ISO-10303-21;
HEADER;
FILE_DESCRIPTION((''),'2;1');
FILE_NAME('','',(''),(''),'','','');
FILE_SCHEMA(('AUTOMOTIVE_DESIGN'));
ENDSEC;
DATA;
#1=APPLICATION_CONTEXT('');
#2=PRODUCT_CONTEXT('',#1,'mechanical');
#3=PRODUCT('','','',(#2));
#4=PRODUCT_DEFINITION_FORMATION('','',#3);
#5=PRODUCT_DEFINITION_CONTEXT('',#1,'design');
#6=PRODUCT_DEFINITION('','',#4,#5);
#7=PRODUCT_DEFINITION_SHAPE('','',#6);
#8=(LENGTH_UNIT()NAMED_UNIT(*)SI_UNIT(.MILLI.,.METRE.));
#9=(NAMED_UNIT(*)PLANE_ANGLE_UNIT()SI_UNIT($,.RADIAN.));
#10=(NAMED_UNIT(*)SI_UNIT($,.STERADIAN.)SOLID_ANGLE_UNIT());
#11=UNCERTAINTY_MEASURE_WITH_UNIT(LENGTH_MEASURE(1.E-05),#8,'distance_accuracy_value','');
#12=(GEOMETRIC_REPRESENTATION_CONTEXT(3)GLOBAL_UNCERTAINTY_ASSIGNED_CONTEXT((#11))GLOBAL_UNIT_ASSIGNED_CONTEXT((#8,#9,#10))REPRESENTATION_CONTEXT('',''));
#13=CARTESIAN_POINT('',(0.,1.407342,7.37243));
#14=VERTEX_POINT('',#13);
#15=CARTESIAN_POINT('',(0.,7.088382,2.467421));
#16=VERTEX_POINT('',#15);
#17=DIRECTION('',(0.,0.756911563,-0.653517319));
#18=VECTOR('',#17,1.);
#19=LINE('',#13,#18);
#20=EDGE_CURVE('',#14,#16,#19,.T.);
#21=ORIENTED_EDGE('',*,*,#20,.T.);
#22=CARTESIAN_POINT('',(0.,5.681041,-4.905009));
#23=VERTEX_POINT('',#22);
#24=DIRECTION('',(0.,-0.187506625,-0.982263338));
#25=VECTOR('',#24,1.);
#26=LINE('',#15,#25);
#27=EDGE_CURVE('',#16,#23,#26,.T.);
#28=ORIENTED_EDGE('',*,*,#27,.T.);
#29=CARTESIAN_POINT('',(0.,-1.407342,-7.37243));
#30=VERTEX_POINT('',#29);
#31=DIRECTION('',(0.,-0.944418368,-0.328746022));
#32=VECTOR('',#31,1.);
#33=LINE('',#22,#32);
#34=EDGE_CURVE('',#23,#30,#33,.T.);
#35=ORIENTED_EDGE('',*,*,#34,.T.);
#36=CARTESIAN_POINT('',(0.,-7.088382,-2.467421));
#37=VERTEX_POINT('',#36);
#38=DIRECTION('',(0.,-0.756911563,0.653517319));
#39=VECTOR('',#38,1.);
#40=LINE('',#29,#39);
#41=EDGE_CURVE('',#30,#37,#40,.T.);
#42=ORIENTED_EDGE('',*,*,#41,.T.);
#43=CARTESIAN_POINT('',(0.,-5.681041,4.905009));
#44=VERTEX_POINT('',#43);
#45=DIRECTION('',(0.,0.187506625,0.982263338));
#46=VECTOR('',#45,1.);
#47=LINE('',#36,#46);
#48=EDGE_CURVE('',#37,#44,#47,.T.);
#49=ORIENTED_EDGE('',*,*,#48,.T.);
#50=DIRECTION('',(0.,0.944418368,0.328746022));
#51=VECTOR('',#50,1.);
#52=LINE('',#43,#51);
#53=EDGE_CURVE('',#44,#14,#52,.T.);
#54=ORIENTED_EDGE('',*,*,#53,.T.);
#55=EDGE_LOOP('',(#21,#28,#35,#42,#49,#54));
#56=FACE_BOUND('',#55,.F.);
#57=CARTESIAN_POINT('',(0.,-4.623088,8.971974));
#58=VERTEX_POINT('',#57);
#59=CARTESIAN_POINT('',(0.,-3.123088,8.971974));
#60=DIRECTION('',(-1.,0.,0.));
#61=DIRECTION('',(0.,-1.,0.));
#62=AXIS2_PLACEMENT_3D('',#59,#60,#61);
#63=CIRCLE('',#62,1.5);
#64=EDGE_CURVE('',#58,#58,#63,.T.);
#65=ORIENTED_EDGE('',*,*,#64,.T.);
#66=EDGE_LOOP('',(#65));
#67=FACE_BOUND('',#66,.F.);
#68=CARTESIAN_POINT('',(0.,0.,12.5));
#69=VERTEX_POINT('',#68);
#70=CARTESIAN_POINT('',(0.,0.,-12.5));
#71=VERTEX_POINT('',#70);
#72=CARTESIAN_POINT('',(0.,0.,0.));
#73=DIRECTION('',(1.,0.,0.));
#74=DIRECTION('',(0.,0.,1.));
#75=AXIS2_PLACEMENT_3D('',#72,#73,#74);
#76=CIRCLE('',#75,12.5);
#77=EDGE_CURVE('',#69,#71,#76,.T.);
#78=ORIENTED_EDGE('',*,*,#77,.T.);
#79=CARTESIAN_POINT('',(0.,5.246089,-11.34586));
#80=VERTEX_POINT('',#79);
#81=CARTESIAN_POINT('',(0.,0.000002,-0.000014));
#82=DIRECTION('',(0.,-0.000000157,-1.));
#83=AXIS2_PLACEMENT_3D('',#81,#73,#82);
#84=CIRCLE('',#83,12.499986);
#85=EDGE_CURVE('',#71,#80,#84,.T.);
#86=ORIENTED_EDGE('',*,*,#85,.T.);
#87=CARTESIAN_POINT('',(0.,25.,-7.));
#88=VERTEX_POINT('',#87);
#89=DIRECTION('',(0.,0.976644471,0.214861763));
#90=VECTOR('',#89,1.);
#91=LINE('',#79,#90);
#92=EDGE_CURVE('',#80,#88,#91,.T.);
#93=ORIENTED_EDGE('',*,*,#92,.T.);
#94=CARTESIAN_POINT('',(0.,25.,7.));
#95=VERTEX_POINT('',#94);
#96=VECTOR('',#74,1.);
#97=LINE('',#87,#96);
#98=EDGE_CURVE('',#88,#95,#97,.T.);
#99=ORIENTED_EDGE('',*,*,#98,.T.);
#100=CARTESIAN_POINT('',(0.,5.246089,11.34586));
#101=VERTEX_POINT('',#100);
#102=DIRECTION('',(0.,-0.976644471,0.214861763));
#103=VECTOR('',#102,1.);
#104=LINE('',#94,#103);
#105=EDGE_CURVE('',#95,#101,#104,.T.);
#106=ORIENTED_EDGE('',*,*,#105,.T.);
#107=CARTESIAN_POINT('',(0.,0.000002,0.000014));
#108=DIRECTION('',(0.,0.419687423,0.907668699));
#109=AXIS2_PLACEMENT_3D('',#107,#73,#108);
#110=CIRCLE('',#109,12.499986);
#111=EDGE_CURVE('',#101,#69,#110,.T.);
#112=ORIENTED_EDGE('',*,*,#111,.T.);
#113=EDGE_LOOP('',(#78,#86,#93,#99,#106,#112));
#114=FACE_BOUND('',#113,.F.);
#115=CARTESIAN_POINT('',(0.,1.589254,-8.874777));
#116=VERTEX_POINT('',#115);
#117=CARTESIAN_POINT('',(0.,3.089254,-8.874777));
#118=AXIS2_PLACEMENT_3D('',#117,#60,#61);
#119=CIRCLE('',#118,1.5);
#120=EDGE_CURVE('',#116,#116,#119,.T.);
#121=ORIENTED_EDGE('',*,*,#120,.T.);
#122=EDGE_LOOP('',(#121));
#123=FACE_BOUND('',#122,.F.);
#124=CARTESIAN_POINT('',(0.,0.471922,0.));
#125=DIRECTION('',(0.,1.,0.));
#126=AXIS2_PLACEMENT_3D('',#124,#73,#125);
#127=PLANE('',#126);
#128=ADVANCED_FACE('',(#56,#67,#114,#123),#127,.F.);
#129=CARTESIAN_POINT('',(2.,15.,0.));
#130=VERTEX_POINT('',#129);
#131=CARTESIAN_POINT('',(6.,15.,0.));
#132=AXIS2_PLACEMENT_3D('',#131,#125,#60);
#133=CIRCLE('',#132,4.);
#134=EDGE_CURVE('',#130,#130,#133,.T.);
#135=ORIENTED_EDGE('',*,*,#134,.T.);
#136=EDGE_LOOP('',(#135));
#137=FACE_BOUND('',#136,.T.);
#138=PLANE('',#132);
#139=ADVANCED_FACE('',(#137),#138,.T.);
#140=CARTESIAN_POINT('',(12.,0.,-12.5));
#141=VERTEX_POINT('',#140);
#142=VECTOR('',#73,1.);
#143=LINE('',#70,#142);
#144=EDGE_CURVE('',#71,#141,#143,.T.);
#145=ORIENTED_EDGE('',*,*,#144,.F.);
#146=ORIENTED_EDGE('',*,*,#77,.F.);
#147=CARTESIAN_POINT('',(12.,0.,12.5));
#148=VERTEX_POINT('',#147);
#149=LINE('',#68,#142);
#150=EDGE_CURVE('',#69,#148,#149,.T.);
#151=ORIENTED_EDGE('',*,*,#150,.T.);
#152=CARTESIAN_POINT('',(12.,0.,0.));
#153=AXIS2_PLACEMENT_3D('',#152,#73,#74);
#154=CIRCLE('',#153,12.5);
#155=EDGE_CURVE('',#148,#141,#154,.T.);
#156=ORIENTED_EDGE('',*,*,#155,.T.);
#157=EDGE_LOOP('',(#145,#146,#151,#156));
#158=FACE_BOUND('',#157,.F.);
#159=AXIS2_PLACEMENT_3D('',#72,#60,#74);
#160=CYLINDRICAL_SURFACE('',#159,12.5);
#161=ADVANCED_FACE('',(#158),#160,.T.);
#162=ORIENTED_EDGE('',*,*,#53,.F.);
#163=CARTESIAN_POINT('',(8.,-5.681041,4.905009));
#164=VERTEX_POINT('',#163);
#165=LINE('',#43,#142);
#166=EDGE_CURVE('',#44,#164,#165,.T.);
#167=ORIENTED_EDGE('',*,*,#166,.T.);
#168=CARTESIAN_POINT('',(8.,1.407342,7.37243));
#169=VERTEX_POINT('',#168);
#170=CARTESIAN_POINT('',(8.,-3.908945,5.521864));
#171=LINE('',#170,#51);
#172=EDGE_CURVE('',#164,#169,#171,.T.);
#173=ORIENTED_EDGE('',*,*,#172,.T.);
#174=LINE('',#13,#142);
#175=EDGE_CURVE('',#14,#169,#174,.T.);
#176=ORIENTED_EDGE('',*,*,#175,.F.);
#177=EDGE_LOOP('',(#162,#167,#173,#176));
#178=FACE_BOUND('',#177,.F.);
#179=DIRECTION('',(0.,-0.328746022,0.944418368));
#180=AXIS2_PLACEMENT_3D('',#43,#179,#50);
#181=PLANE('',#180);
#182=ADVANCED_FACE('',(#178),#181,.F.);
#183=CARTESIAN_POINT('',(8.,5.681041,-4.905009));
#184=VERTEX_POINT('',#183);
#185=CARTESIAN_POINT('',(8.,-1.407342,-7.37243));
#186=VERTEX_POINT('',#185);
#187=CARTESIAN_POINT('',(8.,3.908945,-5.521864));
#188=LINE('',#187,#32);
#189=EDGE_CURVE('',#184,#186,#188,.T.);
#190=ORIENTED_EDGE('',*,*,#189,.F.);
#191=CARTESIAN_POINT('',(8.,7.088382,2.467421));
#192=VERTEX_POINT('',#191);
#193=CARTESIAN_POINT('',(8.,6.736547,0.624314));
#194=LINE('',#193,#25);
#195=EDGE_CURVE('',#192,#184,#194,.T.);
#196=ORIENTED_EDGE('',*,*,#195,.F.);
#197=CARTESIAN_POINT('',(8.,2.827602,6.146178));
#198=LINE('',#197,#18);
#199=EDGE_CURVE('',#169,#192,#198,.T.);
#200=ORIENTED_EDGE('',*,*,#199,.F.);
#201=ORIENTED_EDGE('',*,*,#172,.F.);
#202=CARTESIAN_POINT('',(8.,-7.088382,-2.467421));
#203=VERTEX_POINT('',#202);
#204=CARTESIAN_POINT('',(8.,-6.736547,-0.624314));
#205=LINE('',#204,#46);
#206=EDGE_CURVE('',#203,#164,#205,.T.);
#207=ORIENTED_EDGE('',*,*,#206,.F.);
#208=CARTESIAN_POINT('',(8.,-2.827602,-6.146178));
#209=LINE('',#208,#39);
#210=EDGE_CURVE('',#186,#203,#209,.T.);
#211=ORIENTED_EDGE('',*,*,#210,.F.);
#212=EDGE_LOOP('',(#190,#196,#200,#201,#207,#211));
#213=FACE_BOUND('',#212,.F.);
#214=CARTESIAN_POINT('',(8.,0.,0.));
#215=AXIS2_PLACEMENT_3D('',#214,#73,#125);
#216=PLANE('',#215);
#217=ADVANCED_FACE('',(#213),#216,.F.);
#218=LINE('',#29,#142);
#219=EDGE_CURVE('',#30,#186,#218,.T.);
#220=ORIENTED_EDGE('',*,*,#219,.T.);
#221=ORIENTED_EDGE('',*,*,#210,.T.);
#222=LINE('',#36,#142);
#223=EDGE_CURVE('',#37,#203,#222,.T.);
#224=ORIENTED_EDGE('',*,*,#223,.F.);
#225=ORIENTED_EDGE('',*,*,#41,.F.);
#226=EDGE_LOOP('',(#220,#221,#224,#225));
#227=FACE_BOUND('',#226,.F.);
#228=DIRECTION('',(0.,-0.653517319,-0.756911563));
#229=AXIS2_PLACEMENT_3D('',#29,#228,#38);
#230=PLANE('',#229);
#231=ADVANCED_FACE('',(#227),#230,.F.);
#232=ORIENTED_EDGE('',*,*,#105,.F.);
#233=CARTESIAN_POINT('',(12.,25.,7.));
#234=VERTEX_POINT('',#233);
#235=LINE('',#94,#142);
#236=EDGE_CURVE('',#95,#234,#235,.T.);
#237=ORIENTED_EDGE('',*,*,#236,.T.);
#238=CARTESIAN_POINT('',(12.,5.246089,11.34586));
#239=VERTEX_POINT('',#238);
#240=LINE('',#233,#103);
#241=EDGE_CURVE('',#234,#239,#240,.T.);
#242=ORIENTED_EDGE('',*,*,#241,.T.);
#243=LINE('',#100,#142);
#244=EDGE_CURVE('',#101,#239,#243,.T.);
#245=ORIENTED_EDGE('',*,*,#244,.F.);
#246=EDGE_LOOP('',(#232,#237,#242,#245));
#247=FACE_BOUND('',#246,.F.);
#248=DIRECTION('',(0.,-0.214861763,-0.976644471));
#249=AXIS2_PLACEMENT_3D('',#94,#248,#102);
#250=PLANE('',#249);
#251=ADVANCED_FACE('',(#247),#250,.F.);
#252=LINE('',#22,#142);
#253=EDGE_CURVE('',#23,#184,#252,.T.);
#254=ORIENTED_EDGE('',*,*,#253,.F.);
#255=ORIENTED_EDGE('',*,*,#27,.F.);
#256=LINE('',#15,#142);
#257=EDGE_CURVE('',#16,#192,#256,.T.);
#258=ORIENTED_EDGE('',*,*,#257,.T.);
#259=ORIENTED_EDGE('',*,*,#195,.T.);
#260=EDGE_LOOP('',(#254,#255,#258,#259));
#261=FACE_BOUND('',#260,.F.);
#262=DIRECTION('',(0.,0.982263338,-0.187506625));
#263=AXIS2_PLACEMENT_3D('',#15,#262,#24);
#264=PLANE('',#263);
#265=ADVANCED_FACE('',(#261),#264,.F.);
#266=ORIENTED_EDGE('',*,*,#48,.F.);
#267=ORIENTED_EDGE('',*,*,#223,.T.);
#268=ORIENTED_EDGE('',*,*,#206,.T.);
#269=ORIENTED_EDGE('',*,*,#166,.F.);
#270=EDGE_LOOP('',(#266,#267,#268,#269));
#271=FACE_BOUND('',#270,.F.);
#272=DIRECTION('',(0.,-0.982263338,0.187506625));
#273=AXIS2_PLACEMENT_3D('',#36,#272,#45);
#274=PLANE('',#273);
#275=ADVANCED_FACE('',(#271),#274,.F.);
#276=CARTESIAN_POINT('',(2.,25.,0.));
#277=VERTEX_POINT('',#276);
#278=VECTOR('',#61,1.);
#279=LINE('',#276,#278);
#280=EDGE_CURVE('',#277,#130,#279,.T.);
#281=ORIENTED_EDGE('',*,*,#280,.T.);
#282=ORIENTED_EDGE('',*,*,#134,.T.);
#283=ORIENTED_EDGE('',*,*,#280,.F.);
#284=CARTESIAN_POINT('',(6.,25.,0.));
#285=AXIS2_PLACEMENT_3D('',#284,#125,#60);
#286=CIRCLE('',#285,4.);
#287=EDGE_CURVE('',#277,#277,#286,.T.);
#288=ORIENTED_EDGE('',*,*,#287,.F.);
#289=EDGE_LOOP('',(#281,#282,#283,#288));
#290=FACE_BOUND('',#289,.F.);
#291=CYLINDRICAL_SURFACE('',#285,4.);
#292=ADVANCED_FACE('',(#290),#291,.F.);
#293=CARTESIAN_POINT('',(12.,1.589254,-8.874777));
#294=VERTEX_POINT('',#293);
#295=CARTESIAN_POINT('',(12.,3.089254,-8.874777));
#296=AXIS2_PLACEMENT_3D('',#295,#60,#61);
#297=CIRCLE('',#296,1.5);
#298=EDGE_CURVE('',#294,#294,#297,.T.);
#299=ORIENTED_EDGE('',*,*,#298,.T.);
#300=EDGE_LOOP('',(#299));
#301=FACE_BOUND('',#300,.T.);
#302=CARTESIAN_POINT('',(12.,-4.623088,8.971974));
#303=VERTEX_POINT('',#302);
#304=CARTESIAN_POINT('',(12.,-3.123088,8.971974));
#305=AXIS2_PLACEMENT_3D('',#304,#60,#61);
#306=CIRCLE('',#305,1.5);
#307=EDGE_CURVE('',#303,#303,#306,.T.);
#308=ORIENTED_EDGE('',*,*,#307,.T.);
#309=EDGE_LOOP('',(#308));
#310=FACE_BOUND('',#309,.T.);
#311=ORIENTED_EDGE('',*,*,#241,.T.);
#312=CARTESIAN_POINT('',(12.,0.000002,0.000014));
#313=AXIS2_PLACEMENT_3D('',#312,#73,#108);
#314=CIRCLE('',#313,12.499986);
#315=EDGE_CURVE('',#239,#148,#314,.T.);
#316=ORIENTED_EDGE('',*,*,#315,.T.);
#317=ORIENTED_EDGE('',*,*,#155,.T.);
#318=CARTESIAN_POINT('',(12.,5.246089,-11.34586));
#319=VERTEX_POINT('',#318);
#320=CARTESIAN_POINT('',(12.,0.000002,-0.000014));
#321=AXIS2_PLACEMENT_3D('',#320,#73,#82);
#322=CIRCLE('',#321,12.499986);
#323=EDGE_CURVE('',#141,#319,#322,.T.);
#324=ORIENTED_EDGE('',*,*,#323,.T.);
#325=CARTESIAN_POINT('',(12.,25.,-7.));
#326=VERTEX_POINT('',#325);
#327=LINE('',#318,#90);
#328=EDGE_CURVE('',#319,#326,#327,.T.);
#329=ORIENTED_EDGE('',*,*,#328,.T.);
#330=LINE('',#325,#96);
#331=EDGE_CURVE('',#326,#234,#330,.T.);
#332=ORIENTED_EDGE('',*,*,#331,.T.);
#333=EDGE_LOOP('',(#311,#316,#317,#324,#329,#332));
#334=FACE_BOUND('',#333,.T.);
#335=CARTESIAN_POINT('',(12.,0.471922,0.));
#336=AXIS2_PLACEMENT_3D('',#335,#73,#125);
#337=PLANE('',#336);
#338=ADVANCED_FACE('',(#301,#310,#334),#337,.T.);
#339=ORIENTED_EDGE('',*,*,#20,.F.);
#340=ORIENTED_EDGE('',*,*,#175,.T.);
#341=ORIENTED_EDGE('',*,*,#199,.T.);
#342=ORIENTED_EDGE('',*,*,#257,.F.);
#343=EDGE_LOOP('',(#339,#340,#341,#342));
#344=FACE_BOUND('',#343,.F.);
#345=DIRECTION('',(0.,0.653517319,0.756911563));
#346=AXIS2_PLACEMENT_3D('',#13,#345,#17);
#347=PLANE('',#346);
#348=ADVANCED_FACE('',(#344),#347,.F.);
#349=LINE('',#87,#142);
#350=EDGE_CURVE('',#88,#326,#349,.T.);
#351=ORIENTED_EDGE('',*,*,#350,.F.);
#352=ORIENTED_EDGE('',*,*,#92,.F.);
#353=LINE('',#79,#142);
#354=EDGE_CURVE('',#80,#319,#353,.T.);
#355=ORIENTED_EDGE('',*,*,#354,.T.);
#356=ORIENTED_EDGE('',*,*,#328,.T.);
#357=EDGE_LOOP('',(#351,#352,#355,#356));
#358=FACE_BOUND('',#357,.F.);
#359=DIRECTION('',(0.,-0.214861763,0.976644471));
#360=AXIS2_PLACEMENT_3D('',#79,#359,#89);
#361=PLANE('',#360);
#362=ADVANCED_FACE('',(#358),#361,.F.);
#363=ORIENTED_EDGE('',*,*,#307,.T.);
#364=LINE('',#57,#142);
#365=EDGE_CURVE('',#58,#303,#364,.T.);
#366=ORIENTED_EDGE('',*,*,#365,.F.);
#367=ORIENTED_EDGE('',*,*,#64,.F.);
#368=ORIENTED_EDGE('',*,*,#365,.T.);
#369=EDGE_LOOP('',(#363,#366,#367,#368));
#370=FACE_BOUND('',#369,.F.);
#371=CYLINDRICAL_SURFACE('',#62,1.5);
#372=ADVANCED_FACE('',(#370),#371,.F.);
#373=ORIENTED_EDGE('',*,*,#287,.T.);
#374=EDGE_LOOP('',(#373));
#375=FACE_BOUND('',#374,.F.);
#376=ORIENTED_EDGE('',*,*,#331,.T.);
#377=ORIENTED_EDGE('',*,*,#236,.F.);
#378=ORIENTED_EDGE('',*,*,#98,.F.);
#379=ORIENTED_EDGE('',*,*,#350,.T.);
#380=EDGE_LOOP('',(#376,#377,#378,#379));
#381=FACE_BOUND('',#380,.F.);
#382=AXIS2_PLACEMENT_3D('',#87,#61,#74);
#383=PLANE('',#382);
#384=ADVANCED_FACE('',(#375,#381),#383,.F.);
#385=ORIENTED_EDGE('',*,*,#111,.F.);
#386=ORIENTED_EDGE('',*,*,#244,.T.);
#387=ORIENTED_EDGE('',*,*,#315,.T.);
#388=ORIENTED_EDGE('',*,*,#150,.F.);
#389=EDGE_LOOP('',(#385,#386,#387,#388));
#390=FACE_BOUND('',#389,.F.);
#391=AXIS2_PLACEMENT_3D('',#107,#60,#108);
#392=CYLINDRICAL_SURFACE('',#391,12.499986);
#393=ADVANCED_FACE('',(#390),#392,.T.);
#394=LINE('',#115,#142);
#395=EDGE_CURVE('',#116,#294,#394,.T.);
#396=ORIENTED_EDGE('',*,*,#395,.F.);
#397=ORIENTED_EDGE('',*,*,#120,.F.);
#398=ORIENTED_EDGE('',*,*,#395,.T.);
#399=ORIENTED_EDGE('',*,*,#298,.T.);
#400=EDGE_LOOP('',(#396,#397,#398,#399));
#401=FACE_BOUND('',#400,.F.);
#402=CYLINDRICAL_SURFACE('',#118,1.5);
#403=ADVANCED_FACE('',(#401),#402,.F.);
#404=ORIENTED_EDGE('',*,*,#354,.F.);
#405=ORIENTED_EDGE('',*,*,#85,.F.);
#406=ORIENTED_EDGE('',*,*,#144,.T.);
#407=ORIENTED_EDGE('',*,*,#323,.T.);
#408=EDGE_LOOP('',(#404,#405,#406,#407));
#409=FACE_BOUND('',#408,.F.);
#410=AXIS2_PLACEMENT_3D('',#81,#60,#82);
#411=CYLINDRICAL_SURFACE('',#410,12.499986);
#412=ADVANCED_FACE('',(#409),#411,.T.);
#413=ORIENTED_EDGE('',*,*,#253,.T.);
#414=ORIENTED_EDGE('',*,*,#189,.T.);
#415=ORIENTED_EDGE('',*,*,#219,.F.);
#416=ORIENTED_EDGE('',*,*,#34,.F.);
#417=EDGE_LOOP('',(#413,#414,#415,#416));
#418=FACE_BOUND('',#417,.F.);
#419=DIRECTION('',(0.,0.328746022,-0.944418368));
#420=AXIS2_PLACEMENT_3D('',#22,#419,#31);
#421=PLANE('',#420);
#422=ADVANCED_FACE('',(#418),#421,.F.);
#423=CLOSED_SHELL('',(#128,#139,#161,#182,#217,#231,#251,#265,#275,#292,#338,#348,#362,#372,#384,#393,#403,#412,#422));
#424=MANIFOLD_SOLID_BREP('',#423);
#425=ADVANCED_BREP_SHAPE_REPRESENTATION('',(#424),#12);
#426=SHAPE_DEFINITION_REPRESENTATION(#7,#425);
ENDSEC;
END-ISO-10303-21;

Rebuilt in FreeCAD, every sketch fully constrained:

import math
import FreeCAD as App
import Part
import Sketcher

doc = App.newDocument("Part")
body = doc.addObject("PartDesign::Body", "Body")

sketch1 = doc.addObject("Sketcher::SketchObject", "Sketch")
body.addObject(sketch1)
sketch1.AttachmentSupport = (doc.YZ_Plane, [""])
sketch1.MapMode = "FlatFace"
sketch1.addGeometry(Part.ArcOfCircle(Part.Circle(App.Vector(0, 0, 0), App.Vector(0, 0, 1), 12), math.radians(65), math.radians(90)), False)
sketch1.addGeometry(Part.ArcOfCircle(Part.Circle(App.Vector(0, 0, 0), App.Vector(0, 0, 1), 12), math.radians(90), math.radians(270)), False)
sketch1.addGeometry(Part.ArcOfCircle(Part.Circle(App.Vector(0, 0, 0), App.Vector(0, 0, 1), 12), math.radians(-90), math.radians(-65)), False)
sketch1.addGeometry(Part.LineSegment(App.Vector(5, -11, 0), App.Vector(25, -7, 0)), False)
sketch1.addGeometry(Part.LineSegment(App.Vector(25, -7, 0), App.Vector(25, 7, 0)), False)
sketch1.addGeometry(Part.LineSegment(App.Vector(25, 7, 0), App.Vector(5, 11, 0)), False)
sketch1.addGeometry(Part.LineSegment(App.Vector(1, 7, 0), App.Vector(7, 2, 0)), False)
sketch1.addGeometry(Part.LineSegment(App.Vector(7, 2, 0), App.Vector(6, -5, 0)), False)
sketch1.addGeometry(Part.LineSegment(App.Vector(6, -5, 0), App.Vector(-1, -7, 0)), False)
sketch1.addGeometry(Part.LineSegment(App.Vector(-1, -7, 0), App.Vector(-7, -2, 0)), False)
sketch1.addGeometry(Part.LineSegment(App.Vector(-7, -2, 0), App.Vector(-6, 5, 0)), False)
sketch1.addGeometry(Part.LineSegment(App.Vector(-6, 5, 0), App.Vector(1, 7, 0)), False)
sketch1.addConstraint(Sketcher.Constraint("Tangent", 0, 2, 1, 1))
sketch1.addConstraint(Sketcher.Constraint("Tangent", 1, 2, 2, 1))
sketch1.addConstraint(Sketcher.Constraint("Coincident", 2, 2, 3, 1))
sketch1.addConstraint(Sketcher.Constraint("Coincident", 3, 2, 4, 1))
sketch1.addConstraint(Sketcher.Constraint("Coincident", 4, 2, 5, 1))
sketch1.addConstraint(Sketcher.Constraint("Coincident", 5, 2, 0, 1))
sketch1.addConstraint(Sketcher.Constraint("Coincident", 6, 2, 7, 1))
sketch1.addConstraint(Sketcher.Constraint("Coincident", 7, 2, 8, 1))
sketch1.addConstraint(Sketcher.Constraint("Coincident", 8, 2, 9, 1))
sketch1.addConstraint(Sketcher.Constraint("Coincident", 9, 2, 10, 1))
sketch1.addConstraint(Sketcher.Constraint("Coincident", 10, 2, 11, 1))
sketch1.addConstraint(Sketcher.Constraint("Coincident", 11, 2, 6, 1))
sketch1.addConstraint(Sketcher.Constraint("Vertical", 4))
sketch1.addConstraint(Sketcher.Constraint("Coincident", 1, 3, -1, 1))
sketch1.addConstraint(Sketcher.Constraint("Equal", 0, 2))
sketch1.addConstraint(Sketcher.Constraint("Symmetric", 6, 2, 9, 2, -1, 1))
sketch1.addConstraint(Sketcher.Constraint("Symmetric", 7, 2, 10, 2, -1, 1))
sketch1.addConstraint(Sketcher.Constraint("Symmetric", 8, 2, 11, 2, -1, 1))
sketch1.addConstraint(Sketcher.Constraint("PointOnObject", 0, 2, -2))
sketch1.addConstraint(Sketcher.Constraint("PointOnObject", 1, 2, -2))
sketch1.addConstraint(Sketcher.Constraint("Vertical", 2, 2, 5, 2))
sketch1.addConstraint(Sketcher.Constraint("Equal", 3, 5))
sketch1.addConstraint(Sketcher.Constraint("Equal", 6, 7))
sketch1.addConstraint(Sketcher.Constraint("Equal", 7, 8))
sketch1.addConstraint(Sketcher.Constraint("Radius", 1, 12.5))
sketch1.addConstraint(Sketcher.Constraint("DistanceY", 4, 1, 4, 2, 14.0))
sketch1.addConstraint(Sketcher.Constraint("DistanceX", -1, 1, 3, 2, 25.0))
sketch1.addConstraint(Sketcher.Constraint("Radius", 0, 12.499986))
sketch1.addConstraint(Sketcher.Constraint("DistanceX", -1, 1, 2, 2, 5.246089))
sketch1.addConstraint(Sketcher.Constraint("DistanceY", -1, 1, 6, 2, 2.467421))
sketch1.addConstraint(Sketcher.Constraint("DistanceX", -1, 1, 7, 2, 5.681041))
sketch1.addConstraint(Sketcher.Constraint("DistanceY", 7, 2, -1, 1, 4.905009))
sketch1.addConstraint(Sketcher.Constraint("DistanceY", 8, 2, -1, 1, 7.37243))
pad1 = doc.addObject("PartDesign::Pad", "Pad")
body.addObject(pad1)
pad1.Profile = sketch1
pad1.Length = 12

sketch2 = doc.addObject("Sketcher::SketchObject", "Sketch001")
body.addObject(sketch2)
sketch2.AttachmentSupport = (doc.XZ_Plane, [""])
sketch2.MapMode = "FlatFace"
sketch2.AttachmentOffset = App.Placement(App.Vector(0, 0, -25), App.Rotation())
sketch2.addGeometry(Part.Circle(App.Vector(6, 0, 0), App.Vector(0, 0, 1), 4), False)
sketch2.addConstraint(Sketcher.Constraint("PointOnObject", 0, 3, -1))
sketch2.addConstraint(Sketcher.Constraint("Diameter", 0, 8.0))
sketch2.addConstraint(Sketcher.Constraint("DistanceX", -1, 1, 0, 3, 6.0))
pocket1 = doc.addObject("PartDesign::Pocket", "Pocket")
body.addObject(pocket1)
pocket1.Profile = sketch2
pocket1.Length = 10
pocket1.Reversed = True

sketch3 = doc.addObject("Sketcher::SketchObject", "Sketch002")
body.addObject(sketch3)
sketch3.AttachmentSupport = (doc.YZ_Plane, [""])
sketch3.MapMode = "FlatFace"
sketch3.AttachmentOffset = App.Placement(App.Vector(0, 0, 12), App.Rotation())
sketch3.addGeometry(Part.Circle(App.Vector(0, 0, 0), App.Vector(0, 0, 1), 8), False)
sketch3.addConstraint(Sketcher.Constraint("Coincident", 0, 3, -1, 1))
sketch3.addConstraint(Sketcher.Constraint("Diameter", 0, 15.1))
pad2 = doc.addObject("PartDesign::Pad", "Pad001")
body.addObject(pad2)
pad2.Profile = sketch3
pad2.Length = 4
pad2.Reversed = True

sketch4 = doc.addObject("Sketcher::SketchObject", "Sketch003")
body.addObject(sketch4)
sketch4.AttachmentSupport = (doc.YZ_Plane, [""])
sketch4.MapMode = "FlatFace"
sketch4.addGeometry(Part.Circle(App.Vector(-3.1, 9, 0), App.Vector(0, 0, 1), 1.5), False)
sketch4.addGeometry(Part.Circle(App.Vector(3.1, -8.9, 0), App.Vector(0, 0, 1), 1.5), False)
sketch4.addConstraint(Sketcher.Constraint("Equal", 0, 1))
sketch4.addConstraint(Sketcher.Constraint("Diameter", 0, 3.0))
sketch4.addConstraint(Sketcher.Constraint("DistanceX", 0, 3, -1, 1, 3.123088))
sketch4.addConstraint(Sketcher.Constraint("DistanceX", 0, 3, 1, 3, 6.212342))
sketch4.addConstraint(Sketcher.Constraint("DistanceY", 1, 3, 0, 3, 17.846751))
sketch4.addConstraint(Sketcher.Constraint("DistanceY", -1, 1, 0, 3, 8.971974))
pocket2 = doc.addObject("PartDesign::Pocket", "Pocket001")
body.addObject(pocket2)
pocket2.Profile = sketch4
pocket2.Length = 25
pocket2.Reversed = True

doc.recompute()
